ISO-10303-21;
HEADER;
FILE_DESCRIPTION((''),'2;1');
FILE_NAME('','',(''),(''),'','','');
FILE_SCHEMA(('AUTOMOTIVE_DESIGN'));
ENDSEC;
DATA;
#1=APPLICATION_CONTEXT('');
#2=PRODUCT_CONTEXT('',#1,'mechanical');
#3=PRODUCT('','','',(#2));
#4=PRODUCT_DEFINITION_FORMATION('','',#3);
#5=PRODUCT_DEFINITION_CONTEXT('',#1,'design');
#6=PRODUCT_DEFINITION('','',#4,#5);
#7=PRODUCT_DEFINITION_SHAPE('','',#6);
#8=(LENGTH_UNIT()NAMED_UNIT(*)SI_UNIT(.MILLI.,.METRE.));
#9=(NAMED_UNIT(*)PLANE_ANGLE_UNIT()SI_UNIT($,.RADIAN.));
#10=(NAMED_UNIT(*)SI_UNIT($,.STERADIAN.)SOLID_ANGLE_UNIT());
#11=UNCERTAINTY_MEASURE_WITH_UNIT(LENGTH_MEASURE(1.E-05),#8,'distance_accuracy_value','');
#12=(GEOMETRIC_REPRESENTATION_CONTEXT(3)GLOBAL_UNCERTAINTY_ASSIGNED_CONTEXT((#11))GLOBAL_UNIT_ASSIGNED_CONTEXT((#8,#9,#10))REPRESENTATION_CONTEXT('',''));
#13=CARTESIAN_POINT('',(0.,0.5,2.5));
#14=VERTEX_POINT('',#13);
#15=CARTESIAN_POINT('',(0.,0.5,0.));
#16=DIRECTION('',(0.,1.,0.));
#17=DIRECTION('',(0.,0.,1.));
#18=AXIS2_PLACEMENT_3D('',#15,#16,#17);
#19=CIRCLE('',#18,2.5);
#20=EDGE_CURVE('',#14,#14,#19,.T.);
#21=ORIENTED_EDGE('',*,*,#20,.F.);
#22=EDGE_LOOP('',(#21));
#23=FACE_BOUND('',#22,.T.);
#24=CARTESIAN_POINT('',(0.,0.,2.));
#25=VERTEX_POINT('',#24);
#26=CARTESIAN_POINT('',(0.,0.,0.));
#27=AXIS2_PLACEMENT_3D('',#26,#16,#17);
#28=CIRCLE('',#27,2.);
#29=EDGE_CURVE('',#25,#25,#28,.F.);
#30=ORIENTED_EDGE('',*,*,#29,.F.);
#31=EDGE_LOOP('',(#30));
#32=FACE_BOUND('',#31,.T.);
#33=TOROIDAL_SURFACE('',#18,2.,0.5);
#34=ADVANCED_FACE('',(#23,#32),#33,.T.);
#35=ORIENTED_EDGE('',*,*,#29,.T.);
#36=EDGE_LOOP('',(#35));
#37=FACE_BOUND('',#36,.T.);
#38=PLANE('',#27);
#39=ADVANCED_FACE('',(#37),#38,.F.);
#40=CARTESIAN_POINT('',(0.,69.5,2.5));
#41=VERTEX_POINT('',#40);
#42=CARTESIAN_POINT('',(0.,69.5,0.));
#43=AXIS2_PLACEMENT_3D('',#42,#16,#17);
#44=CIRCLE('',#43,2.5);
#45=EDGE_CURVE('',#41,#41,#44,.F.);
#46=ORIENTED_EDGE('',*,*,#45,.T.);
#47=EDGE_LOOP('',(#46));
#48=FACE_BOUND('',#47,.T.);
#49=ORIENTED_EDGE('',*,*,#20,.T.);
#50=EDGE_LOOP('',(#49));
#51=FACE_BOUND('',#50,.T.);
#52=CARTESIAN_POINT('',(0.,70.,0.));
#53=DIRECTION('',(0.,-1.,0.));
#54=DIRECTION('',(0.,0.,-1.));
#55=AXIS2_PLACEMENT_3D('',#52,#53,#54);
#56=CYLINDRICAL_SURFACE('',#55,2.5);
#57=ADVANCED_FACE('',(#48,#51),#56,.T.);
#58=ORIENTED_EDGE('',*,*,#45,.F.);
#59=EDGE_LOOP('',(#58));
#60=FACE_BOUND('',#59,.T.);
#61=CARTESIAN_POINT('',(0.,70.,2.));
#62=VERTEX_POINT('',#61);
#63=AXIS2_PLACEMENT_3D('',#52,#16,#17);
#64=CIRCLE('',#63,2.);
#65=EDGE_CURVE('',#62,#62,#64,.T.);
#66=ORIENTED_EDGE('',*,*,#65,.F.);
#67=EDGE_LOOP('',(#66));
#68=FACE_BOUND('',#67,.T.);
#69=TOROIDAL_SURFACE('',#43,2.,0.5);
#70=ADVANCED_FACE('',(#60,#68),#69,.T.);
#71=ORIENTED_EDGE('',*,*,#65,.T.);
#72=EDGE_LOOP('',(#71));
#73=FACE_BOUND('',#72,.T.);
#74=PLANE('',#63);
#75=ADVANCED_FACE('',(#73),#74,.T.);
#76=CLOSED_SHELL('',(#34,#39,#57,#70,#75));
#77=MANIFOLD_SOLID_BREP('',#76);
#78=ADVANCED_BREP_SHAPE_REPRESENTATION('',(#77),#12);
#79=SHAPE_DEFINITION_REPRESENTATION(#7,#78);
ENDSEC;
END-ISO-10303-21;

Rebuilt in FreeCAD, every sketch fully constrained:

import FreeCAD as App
import Part
import Sketcher

V = App.Vector


def edges_at(feature, points):
    """Names of the edges that pass closest to the given points."""
    edges = feature.Shape.Edges
    near = lambda p: min(range(len(edges)), key=lambda i: edges[i].distToShape(Part.Vertex(*p))[0])
    return sorted({f"Edge{near(p) + 1}" for p in points})

doc = App.newDocument("Part")
body = doc.addObject("PartDesign::Body", "Body")

# Sketch on XZ plane
sketch1 = body.newObject("Sketcher::SketchObject", "Sketch")
sketch1.AttachmentSupport = (doc.getObject("XZ_Plane"), [""])
sketch1.MapMode = "FlatFace"
sketch1.addGeometry(Part.Circle(V(0, 0, 0), V(0, 0, 1), 2.5), False)
sketch1.addConstraint([
    Sketcher.Constraint("Coincident", 0, 3, -1, 1),
    Sketcher.Constraint("Diameter", 0, 5.0),
])
pad1 = body.newObject("PartDesign::Pad", "Pad")
pad1.Profile = sketch1
pad1.Length = 70
pad1.Reversed = True
doc.recompute()

fillet = body.newObject("PartDesign::Fillet", "Fillet")
fillet.Base = (pad1, edges_at(pad1, [(0, 0, -2.5)]))
fillet.Radius = 0.5
doc.recompute()

fillet2 = body.newObject("PartDesign::Fillet", "Fillet001")
fillet2.Base = (fillet, edges_at(fillet, [(0, 70, -2.5)]))
fillet2.Radius = 0.5

doc.recompute()
